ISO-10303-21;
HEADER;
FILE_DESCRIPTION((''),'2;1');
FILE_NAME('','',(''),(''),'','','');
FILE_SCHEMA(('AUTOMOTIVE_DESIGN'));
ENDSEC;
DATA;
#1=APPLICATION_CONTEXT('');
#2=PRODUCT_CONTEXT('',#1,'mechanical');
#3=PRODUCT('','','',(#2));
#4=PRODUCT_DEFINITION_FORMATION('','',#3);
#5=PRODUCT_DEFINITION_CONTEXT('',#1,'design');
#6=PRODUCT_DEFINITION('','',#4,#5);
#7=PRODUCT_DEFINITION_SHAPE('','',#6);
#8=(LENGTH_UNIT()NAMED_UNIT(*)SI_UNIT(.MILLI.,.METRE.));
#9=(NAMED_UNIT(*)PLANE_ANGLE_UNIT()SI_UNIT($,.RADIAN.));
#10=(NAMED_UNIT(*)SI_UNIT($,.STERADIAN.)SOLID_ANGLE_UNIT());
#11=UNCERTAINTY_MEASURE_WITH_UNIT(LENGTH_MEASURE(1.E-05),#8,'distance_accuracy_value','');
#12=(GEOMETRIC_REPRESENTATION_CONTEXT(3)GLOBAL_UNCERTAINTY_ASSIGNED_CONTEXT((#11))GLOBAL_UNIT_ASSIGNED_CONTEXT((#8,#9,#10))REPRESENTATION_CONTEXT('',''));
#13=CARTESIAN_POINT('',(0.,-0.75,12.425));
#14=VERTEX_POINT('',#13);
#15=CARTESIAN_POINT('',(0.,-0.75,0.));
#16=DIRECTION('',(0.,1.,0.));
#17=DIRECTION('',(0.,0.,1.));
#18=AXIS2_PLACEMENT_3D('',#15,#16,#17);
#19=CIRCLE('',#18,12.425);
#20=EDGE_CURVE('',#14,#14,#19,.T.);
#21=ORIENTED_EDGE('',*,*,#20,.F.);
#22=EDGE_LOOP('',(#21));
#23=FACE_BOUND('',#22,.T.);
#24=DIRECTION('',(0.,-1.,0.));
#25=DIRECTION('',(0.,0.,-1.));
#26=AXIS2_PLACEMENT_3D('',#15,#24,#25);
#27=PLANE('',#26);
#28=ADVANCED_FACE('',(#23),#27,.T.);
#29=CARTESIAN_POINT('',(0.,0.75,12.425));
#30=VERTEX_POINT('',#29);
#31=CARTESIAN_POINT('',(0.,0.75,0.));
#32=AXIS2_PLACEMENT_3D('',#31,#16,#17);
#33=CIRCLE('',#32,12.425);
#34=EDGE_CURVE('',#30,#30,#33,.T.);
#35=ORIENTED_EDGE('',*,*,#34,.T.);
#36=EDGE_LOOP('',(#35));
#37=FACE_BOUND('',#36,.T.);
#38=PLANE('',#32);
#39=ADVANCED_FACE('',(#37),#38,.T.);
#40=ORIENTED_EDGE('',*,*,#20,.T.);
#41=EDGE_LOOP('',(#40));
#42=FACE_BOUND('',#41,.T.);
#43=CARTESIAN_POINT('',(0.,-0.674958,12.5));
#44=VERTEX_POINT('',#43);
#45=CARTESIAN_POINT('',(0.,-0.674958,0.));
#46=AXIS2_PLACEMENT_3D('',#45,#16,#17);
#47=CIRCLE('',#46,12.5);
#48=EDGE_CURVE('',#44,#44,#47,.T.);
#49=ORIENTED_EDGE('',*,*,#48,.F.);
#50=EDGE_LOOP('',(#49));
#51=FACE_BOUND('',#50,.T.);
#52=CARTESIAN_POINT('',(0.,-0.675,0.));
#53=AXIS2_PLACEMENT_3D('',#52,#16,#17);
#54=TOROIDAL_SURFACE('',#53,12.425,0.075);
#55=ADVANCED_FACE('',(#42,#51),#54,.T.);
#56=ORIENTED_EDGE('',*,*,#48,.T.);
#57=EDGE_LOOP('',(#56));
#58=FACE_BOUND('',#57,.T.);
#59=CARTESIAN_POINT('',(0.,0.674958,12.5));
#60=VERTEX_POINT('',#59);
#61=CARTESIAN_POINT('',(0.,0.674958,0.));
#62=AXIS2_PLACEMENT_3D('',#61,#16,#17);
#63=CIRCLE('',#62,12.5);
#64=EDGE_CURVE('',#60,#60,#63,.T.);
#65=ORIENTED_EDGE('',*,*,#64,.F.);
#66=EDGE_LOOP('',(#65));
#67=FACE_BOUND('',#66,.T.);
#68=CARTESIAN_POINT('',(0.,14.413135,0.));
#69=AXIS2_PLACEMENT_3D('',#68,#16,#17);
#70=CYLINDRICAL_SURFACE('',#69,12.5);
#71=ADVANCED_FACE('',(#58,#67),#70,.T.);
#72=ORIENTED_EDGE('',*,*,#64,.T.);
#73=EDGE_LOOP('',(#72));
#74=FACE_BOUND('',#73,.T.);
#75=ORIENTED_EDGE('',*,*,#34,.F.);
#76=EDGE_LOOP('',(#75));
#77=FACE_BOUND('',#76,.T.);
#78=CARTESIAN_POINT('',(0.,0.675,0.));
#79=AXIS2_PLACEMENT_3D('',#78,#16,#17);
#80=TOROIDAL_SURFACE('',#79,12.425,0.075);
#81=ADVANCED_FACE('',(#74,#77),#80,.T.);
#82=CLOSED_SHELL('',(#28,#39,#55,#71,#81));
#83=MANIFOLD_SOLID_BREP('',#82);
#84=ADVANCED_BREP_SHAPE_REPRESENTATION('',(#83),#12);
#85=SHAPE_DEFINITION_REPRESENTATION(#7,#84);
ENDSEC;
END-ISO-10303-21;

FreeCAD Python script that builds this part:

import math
import FreeCAD as App
import Part
import Sketcher

V = App.Vector
Q = App.Units.Quantity

doc = App.newDocument("Part")
params = doc.addObject("Spreadsheet::Sheet", "Params")
for row, (alias, value) in enumerate([
    ("sketch1_width", "1.5 mm"),
    ("revolution_angle", "360 deg"),
], start=1):
    params.set(f"A{row}", alias)
    params.set(f"B{row}", "=" + value)
    params.setAlias(f"B{row}", alias)

body = doc.addObject("PartDesign::Body", "Body")

# Sketch on YZ plane
sketch1 = body.newObject("Sketcher::SketchObject", "Sketch")
sketch1.AttachmentSupport = (doc.getObject("YZ_Plane"), [""])
sketch1.MapMode = "FlatFace"
sketch1.addGeometry(Part.LineSegment(V(0.75, 0, 0), V(0.75, 12.43, 0)), False)
sketch1.addGeometry(Part.ArcOfCircle(Part.Circle(V(0.68, 12.43, 0), V(0, 0, 1), 0.07), math.radians(0), math.radians(90)), False)
sketch1.addGeometry(Part.LineSegment(V(0.67, 12.5, 0), V(-0.67, 12.5, 0)), False)
sketch1.addGeometry(Part.ArcOfCircle(Part.Circle(V(-0.68, 12.43, 0), V(0, 0, 1), 0.07), math.radians(90), math.radians(180)), False)
sketch1.addGeometry(Part.LineSegment(V(-0.75, 12.43, 0), V(-0.75, 0, 0)), False)
sketch1.addGeometry(Part.LineSegment(V(-0.75, 0, 0), V(0.75, 0, 0)), False)
sketch1.addConstraint(Sketcher.Constraint("Tangent", 0, 2, 1, 1))
sketch1.addConstraint(Sketcher.Constraint("Coincident", 1, 2, 2, 1))
sketch1.addConstraint(Sketcher.Constraint("Coincident", 2, 2, 3, 1))
sketch1.addConstraint(Sketcher.Constraint("Tangent", 3, 2, 4, 1))
sketch1.addConstraint(Sketcher.Constraint("Coincident", 4, 2, 5, 1))
sketch1.addConstraint(Sketcher.Constraint("Coincident", 5, 2, 0, 1))
sketch1.addConstraint(Sketcher.Constraint("Vertical", 0))
sketch1.addConstraint(Sketcher.Constraint("Horizontal", 2))
sketch1.addConstraint(Sketcher.Constraint("Vertical", 4))
sketch1.addConstraint(Sketcher.Constraint("Horizontal", 5))
sketch1.addConstraint(Sketcher.Constraint("Equal", 1, 3))
sketch1.addConstraint(Sketcher.Constraint("Symmetric", 4, 2, 5, 2, -1, 1))
sketch1.addConstraint(Sketcher.Constraint("DistanceX", 5, 1, 5, 2, Q("1.5 mm")))
sketch1.addConstraint(Sketcher.Constraint("Radius", 1, Q("0.075 mm")))
sketch1.addConstraint(Sketcher.Constraint("DistanceY", -1, 1, 1, 2, Q("12.5 mm")))
sketch1.addConstraint(Sketcher.Constraint("DistanceX", 2, 2, 2, 1, Q("1.349917 mm")))
sketch1.addConstraint(Sketcher.Constraint("DistanceX", -1, 1, 1, 2, Q("0.674958 mm")))
sketch1.setExpression("Constraints[12]", "Params.sketch1_width")
revolution = body.newObject("PartDesign::Revolution", "Revolution")
revolution.Profile = sketch1
revolution.ReferenceAxis = (sketch1, ["H_Axis"])
revolution.setExpression("Angle", "Params.revolution_angle")

doc.recompute()
